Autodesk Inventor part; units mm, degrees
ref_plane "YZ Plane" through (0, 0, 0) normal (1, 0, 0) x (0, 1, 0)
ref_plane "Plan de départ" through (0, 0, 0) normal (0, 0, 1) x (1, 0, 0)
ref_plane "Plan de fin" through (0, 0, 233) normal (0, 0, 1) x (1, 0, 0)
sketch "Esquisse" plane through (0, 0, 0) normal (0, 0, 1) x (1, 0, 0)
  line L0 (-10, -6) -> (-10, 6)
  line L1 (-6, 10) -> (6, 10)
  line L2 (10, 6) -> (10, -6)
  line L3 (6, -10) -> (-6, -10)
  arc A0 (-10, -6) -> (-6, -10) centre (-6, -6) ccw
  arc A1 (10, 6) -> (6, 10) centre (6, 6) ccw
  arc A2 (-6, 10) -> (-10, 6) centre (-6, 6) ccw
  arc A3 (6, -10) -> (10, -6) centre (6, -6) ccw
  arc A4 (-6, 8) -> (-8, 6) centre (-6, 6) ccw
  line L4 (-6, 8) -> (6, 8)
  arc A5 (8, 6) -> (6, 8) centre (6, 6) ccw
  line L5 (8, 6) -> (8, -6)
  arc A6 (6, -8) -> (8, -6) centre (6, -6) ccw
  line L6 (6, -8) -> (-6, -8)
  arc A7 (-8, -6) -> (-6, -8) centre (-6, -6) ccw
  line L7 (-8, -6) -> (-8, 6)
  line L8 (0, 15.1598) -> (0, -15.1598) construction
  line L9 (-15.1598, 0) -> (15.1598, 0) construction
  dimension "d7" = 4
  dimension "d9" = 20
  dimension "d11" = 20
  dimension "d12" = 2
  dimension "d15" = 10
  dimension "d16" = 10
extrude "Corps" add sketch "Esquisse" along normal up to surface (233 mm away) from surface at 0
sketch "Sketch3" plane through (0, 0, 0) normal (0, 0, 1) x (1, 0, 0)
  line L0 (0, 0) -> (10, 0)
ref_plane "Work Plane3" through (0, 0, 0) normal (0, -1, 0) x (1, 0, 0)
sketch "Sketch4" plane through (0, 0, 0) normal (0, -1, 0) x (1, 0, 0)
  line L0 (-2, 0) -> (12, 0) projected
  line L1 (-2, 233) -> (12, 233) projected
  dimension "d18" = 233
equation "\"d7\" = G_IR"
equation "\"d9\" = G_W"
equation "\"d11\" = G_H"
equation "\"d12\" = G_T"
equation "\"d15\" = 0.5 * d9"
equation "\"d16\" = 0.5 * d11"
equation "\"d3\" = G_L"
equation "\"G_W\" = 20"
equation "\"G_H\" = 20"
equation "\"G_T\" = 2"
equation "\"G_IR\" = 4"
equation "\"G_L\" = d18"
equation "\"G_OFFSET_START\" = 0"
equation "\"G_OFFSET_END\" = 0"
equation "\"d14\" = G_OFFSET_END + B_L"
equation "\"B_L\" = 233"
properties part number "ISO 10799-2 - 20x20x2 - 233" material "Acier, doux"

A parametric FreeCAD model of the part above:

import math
import FreeCAD as App
import Part
import Sketcher
from FreeCAD import Vector

doc = App.newDocument("Part")
body = doc.addObject("PartDesign::Body", "Body")

# Sketch on XY plane
sketch1 = body.newObject("Sketcher::SketchObject", "Sketch")
sketch1.AttachmentSupport = (doc.getObject("XY_Plane"), [""])
sketch1.MapMode = "FlatFace"
sketch1.addGeometry([
    Part.LineSegment(Vector(-10, 6, 0), Vector(-10, -6, 0)),  # 0
    Part.ArcOfCircle(Part.Circle(Vector(-6, -6, 0), Vector(0, 0, 1), 4), math.radians(180), math.radians(270)),  # 1
    Part.LineSegment(Vector(-6, -10, 0), Vector(6, -10, 0)),  # 2
    Part.ArcOfCircle(Part.Circle(Vector(6, -6, 0), Vector(0, 0, 1), 4), math.radians(-90), math.radians(0)),  # 3
    Part.LineSegment(Vector(10, -6, 0), Vector(10, 6, 0)),  # 4
    Part.ArcOfCircle(Part.Circle(Vector(6, 6, 0), Vector(0, 0, 1), 4), math.radians(0), math.radians(90)),  # 5
    Part.LineSegment(Vector(6, 10, 0), Vector(-6, 10, 0)),  # 6
    Part.ArcOfCircle(Part.Circle(Vector(-6, 6, 0), Vector(0, 0, 1), 4), math.radians(90), math.radians(180)),  # 7
    Part.ArcOfCircle(Part.Circle(Vector(-6, 6, 0), Vector(0, 0, 1), 2), math.radians(90), math.radians(180)),  # 8
    Part.LineSegment(Vector(-6, 8, 0), Vector(6, 8, 0)),  # 9
    Part.ArcOfCircle(Part.Circle(Vector(6, 6, 0), Vector(0, 0, 1), 2), math.radians(0), math.radians(90)),  # 10
    Part.LineSegment(Vector(8, 6, 0), Vector(8, -6, 0)),  # 11
    Part.ArcOfCircle(Part.Circle(Vector(6, -6, 0), Vector(0, 0, 1), 2), math.radians(-90), math.radians(0)),  # 12
    Part.LineSegment(Vector(6, -8, 0), Vector(-6, -8, 0)),  # 13
    Part.ArcOfCircle(Part.Circle(Vector(-6, -6, 0), Vector(0, 0, 1), 2), math.radians(180), math.radians(270)),  # 14
    Part.LineSegment(Vector(-8, -6, 0), Vector(-8, 6, 0)),  # 15
], False)
sketch1.addConstraint([
    Sketcher.Constraint("Tangent", 0, 2, 1, 1),
    Sketcher.Constraint("Tangent", 1, 2, 2, 1),
    Sketcher.Constraint("Tangent", 2, 2, 3, 1),
    Sketcher.Constraint("Tangent", 3, 2, 4, 1),
    Sketcher.Constraint("Tangent", 4, 2, 5, 1),
    Sketcher.Constraint("Tangent", 5, 2, 6, 1),
    Sketcher.Constraint("Tangent", 6, 2, 7, 1),
    Sketcher.Constraint("Tangent", 7, 2, 0, 1),
    Sketcher.Constraint("Tangent", 8, 1, 9, 1),
    Sketcher.Constraint("Tangent", 9, 2, 10, 2),
    Sketcher.Constraint("Tangent", 10, 1, 11, 1),
    Sketcher.Constraint("Tangent", 11, 2, 12, 2),
    Sketcher.Constraint("Tangent", 12, 1, 13, 1),
    Sketcher.Constraint("Tangent", 13, 2, 14, 2),
    Sketcher.Constraint("Tangent", 14, 1, 15, 1),
    Sketcher.Constraint("Tangent", 15, 2, 8, 2),
    Sketcher.Constraint("Vertical", 0),
    Sketcher.Constraint("Horizontal", 2),
    Sketcher.Constraint("Vertical", 4),
    Sketcher.Constraint("Horizontal", 6),
    Sketcher.Constraint("Horizontal", 9),
    Sketcher.Constraint("Vertical", 11),
    Sketcher.Constraint("Horizontal", 13),
    Sketcher.Constraint("Vertical", 15),
    Sketcher.Constraint("Coincident", 8, 3, 7, 3),
    Sketcher.Constraint("Coincident", 10, 3, 5, 3),
    Sketcher.Constraint("Coincident", 12, 3, 3, 3),
    Sketcher.Constraint("Equal", 1, 3),
    Sketcher.Constraint("Equal", 3, 5),
    Sketcher.Constraint("Equal", 5, 7),
    Sketcher.Constraint("Equal", 12, 14),
    Sketcher.Constraint("Symmetric", 1, 3, 5, 3, -1, 1),
    Sketcher.Constraint("Equal", 13, 0),
    Sketcher.Constraint("Radius", 1, 4.0),
    Sketcher.Constraint("Radius", 8, 2.0),
    Sketcher.Constraint("DistanceX", 0, 2, -1, 1, 10.0),
])
pad1 = body.newObject("PartDesign::Pad", "Pad")
pad1.Profile = sketch1
pad1.Length = 233

doc.recompute()
